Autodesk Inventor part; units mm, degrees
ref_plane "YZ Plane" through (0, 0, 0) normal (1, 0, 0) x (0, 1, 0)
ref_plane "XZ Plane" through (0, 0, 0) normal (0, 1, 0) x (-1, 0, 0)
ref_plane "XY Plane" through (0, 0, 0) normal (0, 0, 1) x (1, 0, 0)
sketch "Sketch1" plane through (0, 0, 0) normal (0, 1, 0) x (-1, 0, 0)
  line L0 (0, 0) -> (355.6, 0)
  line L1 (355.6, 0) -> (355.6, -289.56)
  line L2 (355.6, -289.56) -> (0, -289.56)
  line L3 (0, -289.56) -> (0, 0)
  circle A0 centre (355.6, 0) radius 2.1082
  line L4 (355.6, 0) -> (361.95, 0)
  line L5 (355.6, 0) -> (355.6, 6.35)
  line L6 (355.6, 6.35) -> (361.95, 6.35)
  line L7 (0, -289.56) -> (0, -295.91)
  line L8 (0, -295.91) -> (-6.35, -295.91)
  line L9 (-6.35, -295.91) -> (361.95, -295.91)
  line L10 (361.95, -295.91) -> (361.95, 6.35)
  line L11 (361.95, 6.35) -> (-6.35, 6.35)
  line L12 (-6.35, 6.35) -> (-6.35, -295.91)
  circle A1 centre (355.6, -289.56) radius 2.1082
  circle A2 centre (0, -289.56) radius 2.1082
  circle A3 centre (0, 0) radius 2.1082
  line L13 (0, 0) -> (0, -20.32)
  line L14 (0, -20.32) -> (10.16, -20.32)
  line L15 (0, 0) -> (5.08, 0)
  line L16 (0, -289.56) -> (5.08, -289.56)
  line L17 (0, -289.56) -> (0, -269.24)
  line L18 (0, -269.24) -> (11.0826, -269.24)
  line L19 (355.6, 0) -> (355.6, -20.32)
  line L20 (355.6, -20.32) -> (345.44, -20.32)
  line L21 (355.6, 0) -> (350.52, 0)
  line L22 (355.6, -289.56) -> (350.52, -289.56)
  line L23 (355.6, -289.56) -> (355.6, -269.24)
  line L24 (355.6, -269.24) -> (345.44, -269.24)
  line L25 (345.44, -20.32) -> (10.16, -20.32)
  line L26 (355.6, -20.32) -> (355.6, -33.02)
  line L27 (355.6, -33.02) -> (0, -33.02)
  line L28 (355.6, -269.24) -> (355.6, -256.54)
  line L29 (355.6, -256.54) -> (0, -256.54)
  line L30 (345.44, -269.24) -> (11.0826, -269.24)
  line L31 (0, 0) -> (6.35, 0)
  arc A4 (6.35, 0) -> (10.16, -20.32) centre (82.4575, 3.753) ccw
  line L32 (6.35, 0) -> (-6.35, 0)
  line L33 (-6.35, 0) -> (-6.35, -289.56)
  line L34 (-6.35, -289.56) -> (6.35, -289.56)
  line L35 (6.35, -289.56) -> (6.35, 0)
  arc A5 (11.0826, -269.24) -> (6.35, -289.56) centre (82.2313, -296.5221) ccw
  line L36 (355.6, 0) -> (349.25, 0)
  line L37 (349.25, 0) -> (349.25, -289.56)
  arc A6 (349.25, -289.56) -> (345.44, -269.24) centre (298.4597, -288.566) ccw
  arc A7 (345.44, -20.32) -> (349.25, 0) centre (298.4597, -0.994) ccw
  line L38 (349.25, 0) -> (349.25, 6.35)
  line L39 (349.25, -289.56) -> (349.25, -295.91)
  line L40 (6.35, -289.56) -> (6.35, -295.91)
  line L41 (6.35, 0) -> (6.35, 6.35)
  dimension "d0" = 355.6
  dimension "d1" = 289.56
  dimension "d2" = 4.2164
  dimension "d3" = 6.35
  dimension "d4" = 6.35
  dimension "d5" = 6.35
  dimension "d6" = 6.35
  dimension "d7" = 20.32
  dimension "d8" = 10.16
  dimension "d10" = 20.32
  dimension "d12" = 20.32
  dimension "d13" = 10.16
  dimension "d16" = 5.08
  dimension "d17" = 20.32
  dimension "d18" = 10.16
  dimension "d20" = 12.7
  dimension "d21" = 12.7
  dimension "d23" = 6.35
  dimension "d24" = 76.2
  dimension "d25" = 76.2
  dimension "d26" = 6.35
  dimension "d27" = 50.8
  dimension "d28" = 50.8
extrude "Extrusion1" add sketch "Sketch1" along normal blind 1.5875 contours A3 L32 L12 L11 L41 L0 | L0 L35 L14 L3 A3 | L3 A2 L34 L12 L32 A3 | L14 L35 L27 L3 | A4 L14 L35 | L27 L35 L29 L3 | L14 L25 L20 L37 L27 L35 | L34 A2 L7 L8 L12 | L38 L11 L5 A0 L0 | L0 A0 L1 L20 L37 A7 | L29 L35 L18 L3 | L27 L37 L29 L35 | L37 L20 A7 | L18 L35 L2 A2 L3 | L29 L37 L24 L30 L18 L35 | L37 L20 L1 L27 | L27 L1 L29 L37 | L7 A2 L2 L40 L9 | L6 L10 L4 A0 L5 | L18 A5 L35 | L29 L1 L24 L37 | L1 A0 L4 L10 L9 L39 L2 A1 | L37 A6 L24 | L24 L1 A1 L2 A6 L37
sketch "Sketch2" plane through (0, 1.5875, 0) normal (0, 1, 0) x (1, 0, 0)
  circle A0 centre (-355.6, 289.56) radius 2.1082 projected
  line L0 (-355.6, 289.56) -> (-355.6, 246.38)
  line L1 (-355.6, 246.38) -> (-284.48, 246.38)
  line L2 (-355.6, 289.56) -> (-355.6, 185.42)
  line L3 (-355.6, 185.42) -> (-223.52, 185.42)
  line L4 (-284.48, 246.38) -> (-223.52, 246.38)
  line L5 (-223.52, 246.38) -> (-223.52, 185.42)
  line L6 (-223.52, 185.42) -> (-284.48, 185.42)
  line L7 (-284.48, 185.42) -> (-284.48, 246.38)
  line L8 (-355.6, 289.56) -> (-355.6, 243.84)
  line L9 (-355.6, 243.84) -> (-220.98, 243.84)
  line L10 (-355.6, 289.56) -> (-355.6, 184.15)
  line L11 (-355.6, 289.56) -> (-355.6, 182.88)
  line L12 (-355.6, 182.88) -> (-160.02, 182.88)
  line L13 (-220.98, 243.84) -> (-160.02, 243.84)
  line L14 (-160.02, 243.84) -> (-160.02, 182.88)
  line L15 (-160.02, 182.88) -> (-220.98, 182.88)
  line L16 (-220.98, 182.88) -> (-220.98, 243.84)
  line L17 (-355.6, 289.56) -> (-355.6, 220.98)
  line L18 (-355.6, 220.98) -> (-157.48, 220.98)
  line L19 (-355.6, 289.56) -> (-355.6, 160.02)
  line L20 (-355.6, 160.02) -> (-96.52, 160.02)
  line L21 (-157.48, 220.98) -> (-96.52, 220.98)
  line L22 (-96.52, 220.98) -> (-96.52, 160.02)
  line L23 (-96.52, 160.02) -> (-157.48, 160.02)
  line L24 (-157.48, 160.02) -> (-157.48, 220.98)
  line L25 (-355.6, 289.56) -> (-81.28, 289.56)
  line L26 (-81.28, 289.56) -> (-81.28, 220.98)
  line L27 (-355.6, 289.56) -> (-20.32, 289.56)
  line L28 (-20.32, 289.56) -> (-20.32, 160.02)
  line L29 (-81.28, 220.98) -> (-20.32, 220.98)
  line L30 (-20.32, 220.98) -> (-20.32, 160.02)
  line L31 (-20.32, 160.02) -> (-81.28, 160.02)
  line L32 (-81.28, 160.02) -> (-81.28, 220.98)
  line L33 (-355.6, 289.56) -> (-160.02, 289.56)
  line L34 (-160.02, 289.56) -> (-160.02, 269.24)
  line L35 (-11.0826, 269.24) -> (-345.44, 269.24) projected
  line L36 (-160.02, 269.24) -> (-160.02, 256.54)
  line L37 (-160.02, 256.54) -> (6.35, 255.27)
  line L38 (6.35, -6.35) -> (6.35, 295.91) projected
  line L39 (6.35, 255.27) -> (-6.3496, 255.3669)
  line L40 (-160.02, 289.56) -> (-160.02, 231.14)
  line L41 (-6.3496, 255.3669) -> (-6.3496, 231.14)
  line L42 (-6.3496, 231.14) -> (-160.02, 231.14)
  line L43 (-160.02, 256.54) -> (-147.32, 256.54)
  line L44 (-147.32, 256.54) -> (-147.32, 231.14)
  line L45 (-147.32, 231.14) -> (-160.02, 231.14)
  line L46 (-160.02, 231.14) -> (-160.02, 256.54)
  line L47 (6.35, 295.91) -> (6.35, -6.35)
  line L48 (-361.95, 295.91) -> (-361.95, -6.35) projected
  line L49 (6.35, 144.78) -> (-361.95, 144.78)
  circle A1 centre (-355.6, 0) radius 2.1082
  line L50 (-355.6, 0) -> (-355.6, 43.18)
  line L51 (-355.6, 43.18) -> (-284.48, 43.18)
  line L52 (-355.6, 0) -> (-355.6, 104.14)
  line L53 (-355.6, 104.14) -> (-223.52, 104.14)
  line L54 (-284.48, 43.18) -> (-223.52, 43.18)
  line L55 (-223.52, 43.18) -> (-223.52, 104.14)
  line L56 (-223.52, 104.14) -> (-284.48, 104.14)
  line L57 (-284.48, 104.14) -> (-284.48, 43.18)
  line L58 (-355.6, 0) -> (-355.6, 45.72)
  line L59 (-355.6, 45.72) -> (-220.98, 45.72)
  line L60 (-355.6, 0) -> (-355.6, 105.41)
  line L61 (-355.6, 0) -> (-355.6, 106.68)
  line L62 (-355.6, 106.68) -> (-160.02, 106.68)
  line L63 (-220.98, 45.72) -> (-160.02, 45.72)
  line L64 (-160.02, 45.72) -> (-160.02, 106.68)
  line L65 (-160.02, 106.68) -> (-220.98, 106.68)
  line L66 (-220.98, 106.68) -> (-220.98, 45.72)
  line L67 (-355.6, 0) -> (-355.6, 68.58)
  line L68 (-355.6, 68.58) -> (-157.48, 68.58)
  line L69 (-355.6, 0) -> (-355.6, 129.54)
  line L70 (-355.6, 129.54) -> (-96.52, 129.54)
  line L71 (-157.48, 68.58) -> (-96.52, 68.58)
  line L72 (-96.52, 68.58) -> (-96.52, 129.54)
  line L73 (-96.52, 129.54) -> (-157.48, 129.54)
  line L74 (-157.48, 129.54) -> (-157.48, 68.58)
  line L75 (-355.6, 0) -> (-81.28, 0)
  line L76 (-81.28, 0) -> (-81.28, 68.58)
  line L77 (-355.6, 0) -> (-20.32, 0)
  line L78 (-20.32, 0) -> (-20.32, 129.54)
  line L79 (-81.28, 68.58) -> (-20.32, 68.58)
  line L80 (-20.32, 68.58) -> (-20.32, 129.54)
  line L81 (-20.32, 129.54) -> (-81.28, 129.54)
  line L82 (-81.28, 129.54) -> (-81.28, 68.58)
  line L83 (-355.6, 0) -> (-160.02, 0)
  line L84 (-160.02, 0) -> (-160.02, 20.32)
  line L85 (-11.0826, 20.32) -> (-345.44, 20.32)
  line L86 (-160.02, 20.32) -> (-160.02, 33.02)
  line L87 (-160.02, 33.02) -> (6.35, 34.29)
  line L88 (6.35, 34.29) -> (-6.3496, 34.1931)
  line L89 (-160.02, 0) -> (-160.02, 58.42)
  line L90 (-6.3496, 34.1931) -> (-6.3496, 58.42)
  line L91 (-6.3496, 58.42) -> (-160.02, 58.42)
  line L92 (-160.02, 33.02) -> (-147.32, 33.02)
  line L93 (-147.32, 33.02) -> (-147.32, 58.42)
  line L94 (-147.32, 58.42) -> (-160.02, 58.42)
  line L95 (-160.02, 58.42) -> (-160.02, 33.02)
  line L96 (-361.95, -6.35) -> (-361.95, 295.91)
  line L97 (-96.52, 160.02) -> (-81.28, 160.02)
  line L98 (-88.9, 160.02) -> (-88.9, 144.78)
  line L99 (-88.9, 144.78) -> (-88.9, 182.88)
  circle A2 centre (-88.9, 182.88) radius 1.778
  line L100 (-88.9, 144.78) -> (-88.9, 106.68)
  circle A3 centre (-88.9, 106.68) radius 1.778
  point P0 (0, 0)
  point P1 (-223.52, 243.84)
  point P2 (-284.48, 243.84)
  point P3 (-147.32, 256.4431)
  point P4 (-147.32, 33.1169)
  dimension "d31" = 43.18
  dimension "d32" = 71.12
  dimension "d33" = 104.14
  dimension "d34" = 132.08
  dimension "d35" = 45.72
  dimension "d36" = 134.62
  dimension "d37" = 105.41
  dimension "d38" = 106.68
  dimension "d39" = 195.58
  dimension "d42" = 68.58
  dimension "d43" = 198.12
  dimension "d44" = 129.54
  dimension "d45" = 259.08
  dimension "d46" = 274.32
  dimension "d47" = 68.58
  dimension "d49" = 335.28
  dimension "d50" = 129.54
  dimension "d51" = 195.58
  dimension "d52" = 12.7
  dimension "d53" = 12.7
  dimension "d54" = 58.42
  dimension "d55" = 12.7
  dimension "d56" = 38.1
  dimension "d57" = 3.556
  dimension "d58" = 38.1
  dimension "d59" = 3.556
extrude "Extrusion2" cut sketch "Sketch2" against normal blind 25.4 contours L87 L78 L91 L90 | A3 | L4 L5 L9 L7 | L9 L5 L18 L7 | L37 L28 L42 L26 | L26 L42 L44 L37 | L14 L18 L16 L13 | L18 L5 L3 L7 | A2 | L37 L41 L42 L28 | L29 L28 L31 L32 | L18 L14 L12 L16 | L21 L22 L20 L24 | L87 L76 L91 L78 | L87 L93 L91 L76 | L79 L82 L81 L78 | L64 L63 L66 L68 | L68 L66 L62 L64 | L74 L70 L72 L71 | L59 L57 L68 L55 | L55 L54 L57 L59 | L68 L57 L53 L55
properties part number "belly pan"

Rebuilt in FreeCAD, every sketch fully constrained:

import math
import FreeCAD as App
import Part
import Sketcher
from FreeCAD import Vector
Q = App.Units.Quantity


def add_polygon(sketch, points):
    """Adds a closed chain of lines whose ends are joined by coincident constraints."""
    first, n = sketch.GeometryCount, len(points)
    for a, b in zip(points, points[1:] + points[:1]):
        sketch.addGeometry(Part.LineSegment(App.Vector(*a, 0), App.Vector(*b, 0)), False)
    for i in range(n):
        sketch.addConstraint(Sketcher.Constraint("Coincident", first + i, 2, first + (i + 1) % n, 1))

doc = App.newDocument("Part")
body = doc.addObject("PartDesign::Body", "Body")

sketch1 = body.newObject("Sketcher::SketchObject", "Sketch")
sketch1.AttachmentSupport = (doc.getObject("XZ_Plane"), [""])
sketch1.MapMode = "FlatFace"
sketch1.addGeometry(Part.LineSegment(Vector(6.3, 6.3, 0), Vector(6.3, -295.9, 0)), False)
sketch1.addGeometry(Part.LineSegment(Vector(6.3, -295.9, 0), Vector(-6.3, -295.9, 0)), False)
sketch1.addGeometry(Part.LineSegment(Vector(-6.3, -295.9, 0), Vector(-6.3, -289.6, 0)), False)
sketch1.addGeometry(Part.ArcOfCircle(Part.Circle(Vector(-82.2, -296.5, 0), Vector(0, 0, 1), 76.2), math.radians(5.24), math.radians(20.98)), False)
sketch1.addGeometry(Part.LineSegment(Vector(-11.1, -269.2, 0), Vector(-345.4, -269.2, 0)), False)
sketch1.addGeometry(Part.ArcOfCircle(Part.Circle(Vector(-298.5, -288.6, 0), Vector(0, 0, 1), 50.8), math.radians(158), math.radians(181)), False)
sketch1.addGeometry(Part.LineSegment(Vector(-349.2, -289.6, 0), Vector(-349.2, -295.9, 0)), False)
sketch1.addGeometry(Part.LineSegment(Vector(-349.2, -295.9, 0), Vector(-361.9, -295.9, 0)), False)
sketch1.addGeometry(Part.LineSegment(Vector(-361.9, -295.9, 0), Vector(-361.9, 6.3, 0)), False)
sketch1.addGeometry(Part.LineSegment(Vector(-361.9, 6.3, 0), Vector(-349.2, 6.3, 0)), False)
sketch1.addGeometry(Part.LineSegment(Vector(-349.2, 6.3, 0), Vector(-349.2, 0, 0)), False)
sketch1.addGeometry(Part.ArcOfCircle(Part.Circle(Vector(-298.5, -1, 0), Vector(0, 0, 1), 50.8), math.radians(179), math.radians(202)), False)
sketch1.addGeometry(Part.LineSegment(Vector(-345.4, -20.3, 0), Vector(-10.2, -20.3, 0)), False)
sketch1.addGeometry(Part.ArcOfCircle(Part.Circle(Vector(-82.5, 3.8, 0), Vector(0, 0, 1), 76.2), math.radians(-18.42), math.radians(-2.82)), False)
sketch1.addGeometry(Part.LineSegment(Vector(-6.3, 0, 0), Vector(-6.3, 6.3, 0)), False)
sketch1.addGeometry(Part.LineSegment(Vector(-6.3, 6.3, 0), Vector(6.3, 6.3, 0)), False)
sketch1.addGeometry(Part.Circle(Vector(0, 0, 0), Vector(0, 0, 1), 2.1), False)
sketch1.addGeometry(Part.Circle(Vector(0, -289.6, 0), Vector(0, 0, 1), 2.1), False)
sketch1.addGeometry(Part.Circle(Vector(-355.6, 0, 0), Vector(0, 0, 1), 2.1), False)
sketch1.addGeometry(Part.Circle(Vector(-355.6, -289.6, 0), Vector(0, 0, 1), 2.1), False)
sketch1.addConstraint(Sketcher.Constraint("Coincident", 0, 2, 1, 1))
sketch1.addConstraint(Sketcher.Constraint("Coincident", 1, 2, 2, 1))
sketch1.addConstraint(Sketcher.Constraint("Coincident", 2, 2, 3, 1))
sketch1.addConstraint(Sketcher.Constraint("Coincident", 3, 2, 4, 1))
sketch1.addConstraint(Sketcher.Constraint("Coincident", 4, 2, 5, 1))
sketch1.addConstraint(Sketcher.Constraint("Coincident", 5, 2, 6, 1))
sketch1.addConstraint(Sketcher.Constraint("Coincident", 6, 2, 7, 1))
sketch1.addConstraint(Sketcher.Constraint("Coincident", 7, 2, 8, 1))
sketch1.addConstraint(Sketcher.Constraint("Coincident", 8, 2, 9, 1))
sketch1.addConstraint(Sketcher.Constraint("Coincident", 9, 2, 10, 1))
sketch1.addConstraint(Sketcher.Constraint("Coincident", 10, 2, 11, 1))
sketch1.addConstraint(Sketcher.Constraint("Coincident", 11, 2, 12, 1))
sketch1.addConstraint(Sketcher.Constraint("Coincident", 12, 2, 13, 1))
sketch1.addConstraint(Sketcher.Constraint("Coincident", 13, 2, 14, 1))
sketch1.addConstraint(Sketcher.Constraint("Coincident", 14, 2, 15, 1))
sketch1.addConstraint(Sketcher.Constraint("Coincident", 15, 2, 0, 1))
sketch1.addConstraint(Sketcher.Constraint("Vertical", 0))
sketch1.addConstraint(Sketcher.Constraint("Horizontal", 1))
sketch1.addConstraint(Sketcher.Constraint("Vertical", 2))
sketch1.addConstraint(Sketcher.Constraint("Horizontal", 4))
sketch1.addConstraint(Sketcher.Constraint("Vertical", 6))
sketch1.addConstraint(Sketcher.Constraint("Horizontal", 7))
sketch1.addConstraint(Sketcher.Constraint("Vertical", 8))
sketch1.addConstraint(Sketcher.Constraint("Horizontal", 9))
sketch1.addConstraint(Sketcher.Constraint("Vertical", 10))
sketch1.addConstraint(Sketcher.Constraint("Horizontal", 12))
sketch1.addConstraint(Sketcher.Constraint("Vertical", 14))
sketch1.addConstraint(Sketcher.Constraint("Horizontal", 15))
sketch1.addConstraint(Sketcher.Constraint("Coincident", 16, 3, -1, 1))
sketch1.addConstraint(Sketcher.Constraint("Equal", 5, 11))
sketch1.addConstraint(Sketcher.Constraint("Equal", 16, 17))
sketch1.addConstraint(Sketcher.Constraint("Equal", 17, 18))
sketch1.addConstraint(Sketcher.Constraint("Equal", 18, 19))
sketch1.addConstraint(Sketcher.Constraint("PointOnObject", 17, 3, -2))
sketch1.addConstraint(Sketcher.Constraint("PointOnObject", 18, 3, -1))
sketch1.addConstraint(Sketcher.Constraint("PointOnObject", 10, 2, -1))
sketch1.addConstraint(Sketcher.Constraint("PointOnObject", 13, 2, -1))
sketch1.addConstraint(Sketcher.Constraint("Horizontal", 17, 3, 19, 3))
sketch1.addConstraint(Sketcher.Constraint("Horizontal", 19, 3, 2, 2))
sketch1.addConstraint(Sketcher.Constraint("Horizontal", 2, 2, 5, 2))
sketch1.addConstraint(Sketcher.Constraint("Horizontal", 1, 2, 6, 2))
sketch1.addConstraint(Sketcher.Constraint("Horizontal", 9, 2, 14, 2))
sketch1.addConstraint(Sketcher.Constraint("Vertical", 5, 3, 11, 3))
sketch1.addConstraint(Sketcher.Constraint("Vertical", 18, 3, 19, 3))
sketch1.addConstraint(Sketcher.Constraint("Vertical", 6, 2, 9, 2))
sketch1.addConstraint(Sketcher.Constraint("Vertical", 4, 2, 11, 2))
sketch1.addConstraint(Sketcher.Constraint("Vertical", 2, 2, 13, 2))
sketch1.addConstraint(Sketcher.Constraint("Equal", 1, 7))
sketch1.addConstraint(Sketcher.Constraint("Equal", 6, 10))
sketch1.addConstraint(Sketcher.Constraint("Radius", 5, Q("2 in")))
sketch1.addConstraint(Sketcher.Constraint("Radius", 13, Q("3 in")))
sketch1.addConstraint(Sketcher.Constraint("Diameter", 16, Q("0.166 in")))
sketch1.addConstraint(Sketcher.Constraint("DistanceX", 1, 2, 1, 1, Q("0.5 in")))
sketch1.addConstraint(Sketcher.Constraint("DistanceX", 18, 3, -1, 1, Q("14 in")))
sketch1.addConstraint(Sketcher.Constraint("DistanceY", 2, 1, 2, 2, Q("0.25 in")))
sketch1.addConstraint(Sketcher.Constraint("DistanceY", 17, 3, -1, 1, Q("11.4 in")))
sketch1.addConstraint(Sketcher.Constraint("DistanceY", 11, 2, -1, 1, Q("0.8 in")))
sketch1.addConstraint(Sketcher.Constraint("DistanceX", 12, 2, -1, 1, Q("0.4 in")))
sketch1.addConstraint(Sketcher.Constraint("DistanceX", 19, 3, 4, 2, Q("0.4 in")))
sketch1.addConstraint(Sketcher.Constraint("DistanceX", -1, 1, 0, 2, Q("0.25 in")))
sketch1.addConstraint(Sketcher.Constraint("DistanceX", 19, 3, 5, 2, Q("0.25 in")))
sketch1.addConstraint(Sketcher.Constraint("Radius", 3, Q("2.9999 in")))
sketch1.addConstraint(Sketcher.Constraint("DistanceX", 13, 3, 3, 3, Q("0.009 in")))
pad1 = body.newObject("PartDesign::Pad", "Pad")
pad1.Profile = sketch1
pad1.Length = Q("0.0625 in")
pad1.Reversed = True

sketch2 = body.newObject("Sketcher::SketchObject", "Sketch001")
sketch2.AttachmentSupport = (doc.getObject("XZ_Plane"), [""])
sketch2.MapMode = "FlatFace"
sketch2.AttachmentOffset = App.Placement(Vector(0, 0, -0.0625 * 25.4), App.Rotation())
add_polygon(sketch2, [(-6.3, -34.2), (-6.3, -58.4), (-147.3, -58.4), (-147.3, -33.1)])
sketch2.addGeometry(Part.Circle(Vector(-88.9, -106.7, 0), Vector(0, 0, 1), 1.8), False)
add_polygon(sketch2, [(-223.5, -246.4), (-284.5, -246.4), (-284.5, -185.4), (-223.5, -185.4)])
add_polygon(sketch2, [(-147.3, -256.4), (-147.3, -231.1), (-6.3, -231.1), (-6.3, -255.4)])
add_polygon(sketch2, [(-160, -243.8), (-221, -243.8), (-221, -182.9), (-160, -182.9)])
sketch2.addGeometry(Part.Circle(Vector(-88.9, -182.9, 0), Vector(0, 0, 1), 1.8), False)
add_polygon(sketch2, [(-20.3, -221), (-81.3, -221), (-81.3, -160), (-20.3, -160)])
add_polygon(sketch2, [(-96.5, -221), (-157.5, -221), (-157.5, -160), (-96.5, -160)])
add_polygon(sketch2, [(-81.3, -68.6), (-20.3, -68.6), (-20.3, -129.5), (-81.3, -129.5)])
add_polygon(sketch2, [(-160, -45.7), (-160, -106.7), (-221, -106.7), (-221, -45.7)])
add_polygon(sketch2, [(-157.5, -129.5), (-157.5, -68.6), (-96.5, -68.6), (-96.5, -129.5)])
add_polygon(sketch2, [(-284.5, -43.2), (-223.5, -43.2), (-223.5, -104.1), (-284.5, -104.1)])
sketch2.addConstraint(Sketcher.Constraint("Vertical", 0))
sketch2.addConstraint(Sketcher.Constraint("Horizontal", 1))
sketch2.addConstraint(Sketcher.Constraint("Vertical", 2))
sketch2.addConstraint(Sketcher.Constraint("Horizontal", 5))
sketch2.addConstraint(Sketcher.Constraint("Vertical", 6))
sketch2.addConstraint(Sketcher.Constraint("Horizontal", 7))
sketch2.addConstraint(Sketcher.Constraint("Vertical", 8))
sketch2.addConstraint(Sketcher.Constraint("Vertical", 9))
sketch2.addConstraint(Sketcher.Constraint("Horizontal", 10))
sketch2.addConstraint(Sketcher.Constraint("Vertical", 11))
sketch2.addConstraint(Sketcher.Constraint("Horizontal", 13))
sketch2.addConstraint(Sketcher.Constraint("Vertical", 14))
sketch2.addConstraint(Sketcher.Constraint("Horizontal", 15))
sketch2.addConstraint(Sketcher.Constraint("Vertical", 16))
sketch2.addConstraint(Sketcher.Constraint("Horizontal", 18))
sketch2.addConstraint(Sketcher.Constraint("Vertical", 19))
sketch2.addConstraint(Sketcher.Constraint("Horizontal", 20))
sketch2.addConstraint(Sketcher.Constraint("Vertical", 21))
sketch2.addConstraint(Sketcher.Constraint("Horizontal", 22))
sketch2.addConstraint(Sketcher.Constraint("Vertical", 23))
sketch2.addConstraint(Sketcher.Constraint("Horizontal", 24))
sketch2.addConstraint(Sketcher.Constraint("Vertical", 25))
sketch2.addConstraint(Sketcher.Constraint("Horizontal", 26))
sketch2.addConstraint(Sketcher.Constraint("Vertical", 27))
sketch2.addConstraint(Sketcher.Constraint("Horizontal", 28))
sketch2.addConstraint(Sketcher.Constraint("Vertical", 29))
sketch2.addConstraint(Sketcher.Constraint("Vertical", 30))
sketch2.addConstraint(Sketcher.Constraint("Horizontal", 31))
sketch2.addConstraint(Sketcher.Constraint("Vertical", 32))
sketch2.addConstraint(Sketcher.Constraint("Horizontal", 33))
sketch2.addConstraint(Sketcher.Constraint("Vertical", 34))
sketch2.addConstraint(Sketcher.Constraint("Horizontal", 35))
sketch2.addConstraint(Sketcher.Constraint("Vertical", 36))
sketch2.addConstraint(Sketcher.Constraint("Horizontal", 37))
sketch2.addConstraint(Sketcher.Constraint("Horizontal", 38))
sketch2.addConstraint(Sketcher.Constraint("Vertical", 39))
sketch2.addConstraint(Sketcher.Constraint("Horizontal", 40))
sketch2.addConstraint(Sketcher.Constraint("Vertical", 41))
sketch2.addConstraint(Sketcher.Constraint("Equal", 4, 17))
sketch2.addConstraint(Sketcher.Constraint("Horizontal", 17, 3, 14, 2))
sketch2.addConstraint(Sketcher.Constraint("Horizontal", 21, 2, 22, 2))
sketch2.addConstraint(Sketcher.Constraint("Horizontal", 20, 2, 23, 2))
sketch2.addConstraint(Sketcher.Constraint("Horizontal", 4, 3, 30, 2))
sketch2.addConstraint(Sketcher.Constraint("Horizontal", 29, 2, 34, 2))
sketch2.addConstraint(Sketcher.Constraint("Horizontal", 28, 2, 36, 2))
sketch2.addConstraint(Sketcher.Constraint("Vertical", 4, 3, 17, 3))
sketch2.addConstraint(Sketcher.Constraint("Vertical", 2, 2, 9, 2))
sketch2.addConstraint(Sketcher.Constraint("Vertical", 3, 2, 10, 2))
sketch2.addConstraint(Sketcher.Constraint("Vertical", 21, 2, 26, 2))
sketch2.addConstraint(Sketcher.Constraint("Vertical", 19, 2, 28, 2))
sketch2.addConstraint(Sketcher.Constraint("Vertical", 16, 2, 30, 2))
sketch2.addConstraint(Sketcher.Constraint("Vertical", 14, 2, 31, 2))
sketch2.addConstraint(Sketcher.Constraint("Vertical", 23, 2, 34, 2))
sketch2.addConstraint(Sketcher.Constraint("Vertical", 25, 2, 35, 2))
sketch2.addConstraint(Sketcher.Constraint("Vertical", 8, 2, 38, 2))
sketch2.addConstraint(Sketcher.Constraint("Vertical", 6, 2, 40, 2))
sketch2.addConstraint(Sketcher.Constraint("Equal", 7, 13))
sketch2.addConstraint(Sketcher.Constraint("Equal", 15, 18))
sketch2.addConstraint(Sketcher.Constraint("Equal", 20, 22))
sketch2.addConstraint(Sketcher.Constraint("Equal", 40, 6))
sketch2.addConstraint(Sketcher.Constraint("Equal", 2, 9))
sketch2.addConstraint(Sketcher.Constraint("Equal", 0, 11))
sketch2.addConstraint(Sketcher.Constraint("Equal", 8, 14))
sketch2.addConstraint(Sketcher.Constraint("Equal", 16, 19))
sketch2.addConstraint(Sketcher.Constraint("Equal", 25, 27))
sketch2.addConstraint(Sketcher.Constraint("Equal", 29, 30))
sketch2.addConstraint(Sketcher.Constraint("Equal", 36, 39))
sketch2.addConstraint(Sketcher.Constraint("Diameter", 4, Q("0.14 in")))
sketch2.addConstraint(Sketcher.Constraint("DistanceY", 4, 3, -1, 1, Q("4.2 in")))
sketch2.addConstraint(Sketcher.Constraint("DistanceY", 0, 2, -1, 1, Q("2.3 in")))
sketch2.addConstraint(Sketcher.Constraint("DistanceY", 26, 2, -1, 1, Q("2.7 in")))
sketch2.addConstraint(Sketcher.Constraint("DistanceY", 27, 2, -1, 1, Q("5.1 in")))
sketch2.addConstraint(Sketcher.Constraint("DistanceY", 38, 2, -1, 1, Q("1.7 in")))
sketch2.addConstraint(Sketcher.Constraint("DistanceX", 1, 2, 4, 3, Q("2.3 in")))
sketch2.addConstraint(Sketcher.Constraint("DistanceX", 5, 2, 17, 3, Q("7.7 in")))
sketch2.addConstraint(Sketcher.Constraint("DistanceY", 9, 2, 7, 2, Q("1.8 in")))
sketch2.addConstraint(Sketcher.Constraint("DistanceY", 13, 2, 7, 2, Q("2.3 in")))
sketch2.addConstraint(Sketcher.Constraint("DistanceX", 15, 2, 9, 2, Q("0.5 in")))
sketch2.addConstraint(Sketcher.Constraint("DistanceY", 18, 2, 17, 3, Q("1.5 in")))
sketch2.addConstraint(Sketcher.Constraint("DistanceX", 17, 3, 20, 2, Q("2.7 in")))
sketch2.addConstraint(Sketcher.Constraint("DistanceY", 17, 3, 4, 3, Q("3 in")))
sketch2.addConstraint(Sketcher.Constraint("DistanceX", 9, 2, 25, 2, Q("2 in")))
sketch2.addConstraint(Sketcher.Constraint("DistanceX", 4, 3, -1, 1, Q("3.5 in")))
sketch2.addConstraint(Sketcher.Constraint("DistanceX", 1, 2, 1, 1, 140.9704))
sketch2.addConstraint(Sketcher.Constraint("DistanceY", 0, 2, 0, 1, 24.227))
sketch2.addConstraint(Sketcher.Constraint("DistanceY", 2, 1, 2, 2, 25.303))
pocket1 = body.newObject("PartDesign::Pocket", "Pocket")
pocket1.Profile = sketch2
pocket1.Length = Q("1 in")
pocket1.Reversed = True

doc.recompute()
